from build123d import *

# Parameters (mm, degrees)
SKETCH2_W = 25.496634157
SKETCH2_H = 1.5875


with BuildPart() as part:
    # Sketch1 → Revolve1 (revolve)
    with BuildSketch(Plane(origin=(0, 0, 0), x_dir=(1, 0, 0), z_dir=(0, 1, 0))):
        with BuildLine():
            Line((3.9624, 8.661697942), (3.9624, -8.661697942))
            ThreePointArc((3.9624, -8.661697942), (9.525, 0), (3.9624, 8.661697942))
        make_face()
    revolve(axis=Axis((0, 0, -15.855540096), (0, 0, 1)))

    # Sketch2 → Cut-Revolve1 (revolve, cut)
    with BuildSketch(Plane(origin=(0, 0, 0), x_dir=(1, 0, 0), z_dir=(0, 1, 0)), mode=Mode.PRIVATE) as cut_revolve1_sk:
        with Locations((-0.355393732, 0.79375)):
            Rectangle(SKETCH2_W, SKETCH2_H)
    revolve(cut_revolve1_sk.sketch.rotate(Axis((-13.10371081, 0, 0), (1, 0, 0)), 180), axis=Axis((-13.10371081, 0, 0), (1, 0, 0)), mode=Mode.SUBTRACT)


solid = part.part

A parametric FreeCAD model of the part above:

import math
import FreeCAD as App
import Part
import Sketcher
from FreeCAD import Vector
Q = App.Units.Quantity

doc = App.newDocument("Part")
body = doc.addObject("PartDesign::Body", "Body")

# Sketch on XZ plane
sketch1 = body.newObject("Sketcher::SketchObject", "Sketch")
sketch1.AttachmentSupport = (doc.getObject("XZ_Plane"), [""])
sketch1.MapMode = "FlatFace"
sketch1.addGeometry([
    Part.LineSegment(Vector(3.9624, -8.661698, 0), Vector(3.9624, 8.661698, 0)),
    Part.ArcOfCircle(Part.Circle(Vector(0, 0, 0), Vector(0, 0, 1), 9.525), math.radians(-65.417693), math.radians(65.417693)),
], False)
sketch1.addConstraint([
    Sketcher.Constraint("Coincident", 0, 1, 1, 1),
    Sketcher.Constraint("Coincident", 1, 2, 0, 2),
    Sketcher.Constraint("Vertical", 0),
    Sketcher.Constraint("Coincident", 1, 3, -1, 1),
    Sketcher.Constraint("Radius", 1, Q("0.375 in")),
    Sketcher.Constraint("DistanceX", -1, 1, 0, 1, Q("0.156 in")),
])
revolution = body.newObject("PartDesign::Revolution", "Revolution")
revolution.Profile = sketch1
revolution.ReferenceAxis = (sketch1, ["V_Axis"])
revolution.Angle = 360

# Sketch on XZ plane
sketch2 = body.newObject("Sketcher::SketchObject", "Sketch001")
sketch2.AttachmentSupport = (doc.getObject("XZ_Plane"), [""])
sketch2.MapMode = "FlatFace"
sketch2.addGeometry([
    Part.LineSegment(Vector(-13.103711, -1.5875, 0), Vector(-13.103711, 0, 0)),
    Part.LineSegment(Vector(-13.103711, 0, 0), Vector(12.392923, 0, 0)),
    Part.LineSegment(Vector(12.392923, 0, 0), Vector(12.392923, -1.5875, 0)),
    Part.LineSegment(Vector(12.392923, -1.5875, 0), Vector(-13.103711, -1.5875, 0)),
], False)
sketch2.addConstraint([
    Sketcher.Constraint("Coincident", 0, 2, 1, 1),
    Sketcher.Constraint("Coincident", 1, 2, 2, 1),
    Sketcher.Constraint("Coincident", 2, 2, 3, 1),
    Sketcher.Constraint("Coincident", 3, 2, 0, 1),
    Sketcher.Constraint("Vertical", 0),
    Sketcher.Constraint("Horizontal", 1),
    Sketcher.Constraint("Vertical", 2),
    Sketcher.Constraint("Horizontal", 3),
    Sketcher.Constraint("PointOnObject", 0, 2, -1),
    Sketcher.Constraint("DistanceY", 0, 1, 0, 2, Q("0.0625 in")),
    Sketcher.Constraint("DistanceX", 1, 1, 1, 2, Q("25.496634 mm")),
    Sketcher.Constraint("DistanceX", 0, 2, -1, 1, Q("13.103711 mm")),
])
groove = body.newObject("PartDesign::Groove", "Groove")
groove.Profile = sketch2
groove.ReferenceAxis = (sketch2, ["H_Axis"])
groove.Angle = 360

doc.recompute()
